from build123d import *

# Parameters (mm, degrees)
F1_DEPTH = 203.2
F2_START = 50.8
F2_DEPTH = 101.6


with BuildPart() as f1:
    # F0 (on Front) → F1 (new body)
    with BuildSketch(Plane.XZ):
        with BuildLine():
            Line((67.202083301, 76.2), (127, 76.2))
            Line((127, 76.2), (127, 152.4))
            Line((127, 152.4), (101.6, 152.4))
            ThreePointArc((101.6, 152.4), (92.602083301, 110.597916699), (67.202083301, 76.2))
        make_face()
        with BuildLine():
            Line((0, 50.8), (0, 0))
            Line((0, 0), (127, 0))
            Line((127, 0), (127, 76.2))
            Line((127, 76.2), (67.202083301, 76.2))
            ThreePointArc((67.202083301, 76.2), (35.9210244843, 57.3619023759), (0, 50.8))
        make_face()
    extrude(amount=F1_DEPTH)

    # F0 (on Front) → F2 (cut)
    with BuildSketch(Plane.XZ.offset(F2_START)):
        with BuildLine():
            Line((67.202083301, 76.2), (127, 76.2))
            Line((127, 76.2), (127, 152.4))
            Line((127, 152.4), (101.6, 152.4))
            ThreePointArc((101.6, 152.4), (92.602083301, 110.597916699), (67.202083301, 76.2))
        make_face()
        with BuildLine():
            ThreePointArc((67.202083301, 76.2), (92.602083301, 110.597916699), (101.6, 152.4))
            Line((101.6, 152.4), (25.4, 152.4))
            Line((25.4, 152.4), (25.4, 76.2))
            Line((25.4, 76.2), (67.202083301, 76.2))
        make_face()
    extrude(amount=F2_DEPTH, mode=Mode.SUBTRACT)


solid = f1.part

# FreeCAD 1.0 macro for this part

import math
import FreeCAD as App
import Part
import Sketcher
Q = App.Units.Quantity


def add_polygon(sketch, points):
    """Adds a closed chain of lines whose ends are joined by coincident constraints."""
    first, n = sketch.GeometryCount, len(points)
    for a, b in zip(points, points[1:] + points[:1]):
        sketch.addGeometry(Part.LineSegment(App.Vector(*a, 0), App.Vector(*b, 0)), False)
    for i in range(n):
        sketch.addConstraint(Sketcher.Constraint("Coincident", first + i, 2, first + (i + 1) % n, 1))

doc = App.newDocument("Part")
body = doc.addObject("PartDesign::Body", "Body")

# Sketch on XZ plane
sketch1 = doc.addObject("Sketcher::SketchObject", "Sketch")
body.addObject(sketch1)
sketch1.AttachmentSupport = (doc.XZ_Plane, [""])
sketch1.MapMode = "FlatFace"
sketch1.addGeometry([
    Part.LineSegment(App.Vector(127, 152, 0), App.Vector(102, 152, 0)),  # 0
    Part.ArcOfCircle(Part.Circle(App.Vector(0, 152, 0), App.Vector(0, 0, 1), 102), math.radians(-49), math.radians(0)),  # 1
    Part.ArcOfCircle(Part.Circle(App.Vector(0, 152, 0), App.Vector(0, 0, 1), 102), math.radians(-90), math.radians(-49)),  # 2
    Part.LineSegment(App.Vector(0, 51, 0), App.Vector(0, 0, 0)),  # 3
    Part.LineSegment(App.Vector(0, 0, 0), App.Vector(127, 0, 0)),  # 4
    Part.LineSegment(App.Vector(127, 0, 0), App.Vector(127, 152, 0)),  # 5
], False)
sketch1.addConstraint([
    Sketcher.Constraint("Coincident", 0, 2, 1, 2),
    Sketcher.Constraint("Tangent", 1, 1, 2, 2),
    Sketcher.Constraint("Coincident", 2, 1, 3, 1),
    Sketcher.Constraint("Coincident", 3, 2, 4, 1),
    Sketcher.Constraint("Coincident", 4, 2, 5, 1),
    Sketcher.Constraint("Coincident", 5, 2, 0, 1),
    Sketcher.Constraint("Horizontal", 0),
    Sketcher.Constraint("Vertical", 3),
    Sketcher.Constraint("Horizontal", 4),
    Sketcher.Constraint("Vertical", 5),
    Sketcher.Constraint("Coincident", 3, 2, -1, 1),
    Sketcher.Constraint("Equal", 1, 2),
    Sketcher.Constraint("PointOnObject", 1, 3, -2),
    Sketcher.Constraint("Horizontal", 2, 3, 0, 2),
    Sketcher.Constraint("Radius", 1, Q("4 in")),
    Sketcher.Constraint("DistanceX", 0, 2, 0, 1, Q("1 in")),
    Sketcher.Constraint("DistanceY", 3, 2, 3, 1, Q("2 in")),
    Sketcher.Constraint("DistanceY", -1, 1, 1, 1, Q("3 in")),
])
pad1 = doc.addObject("PartDesign::Pad", "Pad")
body.addObject(pad1)
pad1.Profile = sketch1
pad1.Length = Q("8 in")

# Sketch on XZ plane
sketch2 = doc.addObject("Sketcher::SketchObject", "Sketch001")
body.addObject(sketch2)
sketch2.AttachmentSupport = (doc.XZ_Plane, [""])
sketch2.MapMode = "FlatFace"
sketch2.AttachmentOffset = App.Placement(App.Vector(0, 0, 2 * 25.4), App.Rotation())
add_polygon(sketch2, [(127, 76), (127, 152), (25, 152), (25, 76)])  # lines 0-3
sketch2.addConstraint([
    Sketcher.Constraint("Vertical", 0),
    Sketcher.Constraint("Horizontal", 1),
    Sketcher.Constraint("Vertical", 2),
    Sketcher.Constraint("Horizontal", 3),
    Sketcher.Constraint("DistanceX", 1, 2, 1, 1, Q("4 in")),
    Sketcher.Constraint("DistanceY", 0, 1, 0, 2, Q("3 in")),
    Sketcher.Constraint("DistanceX", -1, 1, 0, 2, Q("5 in")),
    Sketcher.Constraint("DistanceY", -1, 1, 0, 2, Q("6 in")),
])
pocket1 = doc.addObject("PartDesign::Pocket", "Pocket")
body.addObject(pocket1)
pocket1.Profile = sketch2
pocket1.Length = Q("4 in")
pocket1.Reversed = True

doc.recompute()
